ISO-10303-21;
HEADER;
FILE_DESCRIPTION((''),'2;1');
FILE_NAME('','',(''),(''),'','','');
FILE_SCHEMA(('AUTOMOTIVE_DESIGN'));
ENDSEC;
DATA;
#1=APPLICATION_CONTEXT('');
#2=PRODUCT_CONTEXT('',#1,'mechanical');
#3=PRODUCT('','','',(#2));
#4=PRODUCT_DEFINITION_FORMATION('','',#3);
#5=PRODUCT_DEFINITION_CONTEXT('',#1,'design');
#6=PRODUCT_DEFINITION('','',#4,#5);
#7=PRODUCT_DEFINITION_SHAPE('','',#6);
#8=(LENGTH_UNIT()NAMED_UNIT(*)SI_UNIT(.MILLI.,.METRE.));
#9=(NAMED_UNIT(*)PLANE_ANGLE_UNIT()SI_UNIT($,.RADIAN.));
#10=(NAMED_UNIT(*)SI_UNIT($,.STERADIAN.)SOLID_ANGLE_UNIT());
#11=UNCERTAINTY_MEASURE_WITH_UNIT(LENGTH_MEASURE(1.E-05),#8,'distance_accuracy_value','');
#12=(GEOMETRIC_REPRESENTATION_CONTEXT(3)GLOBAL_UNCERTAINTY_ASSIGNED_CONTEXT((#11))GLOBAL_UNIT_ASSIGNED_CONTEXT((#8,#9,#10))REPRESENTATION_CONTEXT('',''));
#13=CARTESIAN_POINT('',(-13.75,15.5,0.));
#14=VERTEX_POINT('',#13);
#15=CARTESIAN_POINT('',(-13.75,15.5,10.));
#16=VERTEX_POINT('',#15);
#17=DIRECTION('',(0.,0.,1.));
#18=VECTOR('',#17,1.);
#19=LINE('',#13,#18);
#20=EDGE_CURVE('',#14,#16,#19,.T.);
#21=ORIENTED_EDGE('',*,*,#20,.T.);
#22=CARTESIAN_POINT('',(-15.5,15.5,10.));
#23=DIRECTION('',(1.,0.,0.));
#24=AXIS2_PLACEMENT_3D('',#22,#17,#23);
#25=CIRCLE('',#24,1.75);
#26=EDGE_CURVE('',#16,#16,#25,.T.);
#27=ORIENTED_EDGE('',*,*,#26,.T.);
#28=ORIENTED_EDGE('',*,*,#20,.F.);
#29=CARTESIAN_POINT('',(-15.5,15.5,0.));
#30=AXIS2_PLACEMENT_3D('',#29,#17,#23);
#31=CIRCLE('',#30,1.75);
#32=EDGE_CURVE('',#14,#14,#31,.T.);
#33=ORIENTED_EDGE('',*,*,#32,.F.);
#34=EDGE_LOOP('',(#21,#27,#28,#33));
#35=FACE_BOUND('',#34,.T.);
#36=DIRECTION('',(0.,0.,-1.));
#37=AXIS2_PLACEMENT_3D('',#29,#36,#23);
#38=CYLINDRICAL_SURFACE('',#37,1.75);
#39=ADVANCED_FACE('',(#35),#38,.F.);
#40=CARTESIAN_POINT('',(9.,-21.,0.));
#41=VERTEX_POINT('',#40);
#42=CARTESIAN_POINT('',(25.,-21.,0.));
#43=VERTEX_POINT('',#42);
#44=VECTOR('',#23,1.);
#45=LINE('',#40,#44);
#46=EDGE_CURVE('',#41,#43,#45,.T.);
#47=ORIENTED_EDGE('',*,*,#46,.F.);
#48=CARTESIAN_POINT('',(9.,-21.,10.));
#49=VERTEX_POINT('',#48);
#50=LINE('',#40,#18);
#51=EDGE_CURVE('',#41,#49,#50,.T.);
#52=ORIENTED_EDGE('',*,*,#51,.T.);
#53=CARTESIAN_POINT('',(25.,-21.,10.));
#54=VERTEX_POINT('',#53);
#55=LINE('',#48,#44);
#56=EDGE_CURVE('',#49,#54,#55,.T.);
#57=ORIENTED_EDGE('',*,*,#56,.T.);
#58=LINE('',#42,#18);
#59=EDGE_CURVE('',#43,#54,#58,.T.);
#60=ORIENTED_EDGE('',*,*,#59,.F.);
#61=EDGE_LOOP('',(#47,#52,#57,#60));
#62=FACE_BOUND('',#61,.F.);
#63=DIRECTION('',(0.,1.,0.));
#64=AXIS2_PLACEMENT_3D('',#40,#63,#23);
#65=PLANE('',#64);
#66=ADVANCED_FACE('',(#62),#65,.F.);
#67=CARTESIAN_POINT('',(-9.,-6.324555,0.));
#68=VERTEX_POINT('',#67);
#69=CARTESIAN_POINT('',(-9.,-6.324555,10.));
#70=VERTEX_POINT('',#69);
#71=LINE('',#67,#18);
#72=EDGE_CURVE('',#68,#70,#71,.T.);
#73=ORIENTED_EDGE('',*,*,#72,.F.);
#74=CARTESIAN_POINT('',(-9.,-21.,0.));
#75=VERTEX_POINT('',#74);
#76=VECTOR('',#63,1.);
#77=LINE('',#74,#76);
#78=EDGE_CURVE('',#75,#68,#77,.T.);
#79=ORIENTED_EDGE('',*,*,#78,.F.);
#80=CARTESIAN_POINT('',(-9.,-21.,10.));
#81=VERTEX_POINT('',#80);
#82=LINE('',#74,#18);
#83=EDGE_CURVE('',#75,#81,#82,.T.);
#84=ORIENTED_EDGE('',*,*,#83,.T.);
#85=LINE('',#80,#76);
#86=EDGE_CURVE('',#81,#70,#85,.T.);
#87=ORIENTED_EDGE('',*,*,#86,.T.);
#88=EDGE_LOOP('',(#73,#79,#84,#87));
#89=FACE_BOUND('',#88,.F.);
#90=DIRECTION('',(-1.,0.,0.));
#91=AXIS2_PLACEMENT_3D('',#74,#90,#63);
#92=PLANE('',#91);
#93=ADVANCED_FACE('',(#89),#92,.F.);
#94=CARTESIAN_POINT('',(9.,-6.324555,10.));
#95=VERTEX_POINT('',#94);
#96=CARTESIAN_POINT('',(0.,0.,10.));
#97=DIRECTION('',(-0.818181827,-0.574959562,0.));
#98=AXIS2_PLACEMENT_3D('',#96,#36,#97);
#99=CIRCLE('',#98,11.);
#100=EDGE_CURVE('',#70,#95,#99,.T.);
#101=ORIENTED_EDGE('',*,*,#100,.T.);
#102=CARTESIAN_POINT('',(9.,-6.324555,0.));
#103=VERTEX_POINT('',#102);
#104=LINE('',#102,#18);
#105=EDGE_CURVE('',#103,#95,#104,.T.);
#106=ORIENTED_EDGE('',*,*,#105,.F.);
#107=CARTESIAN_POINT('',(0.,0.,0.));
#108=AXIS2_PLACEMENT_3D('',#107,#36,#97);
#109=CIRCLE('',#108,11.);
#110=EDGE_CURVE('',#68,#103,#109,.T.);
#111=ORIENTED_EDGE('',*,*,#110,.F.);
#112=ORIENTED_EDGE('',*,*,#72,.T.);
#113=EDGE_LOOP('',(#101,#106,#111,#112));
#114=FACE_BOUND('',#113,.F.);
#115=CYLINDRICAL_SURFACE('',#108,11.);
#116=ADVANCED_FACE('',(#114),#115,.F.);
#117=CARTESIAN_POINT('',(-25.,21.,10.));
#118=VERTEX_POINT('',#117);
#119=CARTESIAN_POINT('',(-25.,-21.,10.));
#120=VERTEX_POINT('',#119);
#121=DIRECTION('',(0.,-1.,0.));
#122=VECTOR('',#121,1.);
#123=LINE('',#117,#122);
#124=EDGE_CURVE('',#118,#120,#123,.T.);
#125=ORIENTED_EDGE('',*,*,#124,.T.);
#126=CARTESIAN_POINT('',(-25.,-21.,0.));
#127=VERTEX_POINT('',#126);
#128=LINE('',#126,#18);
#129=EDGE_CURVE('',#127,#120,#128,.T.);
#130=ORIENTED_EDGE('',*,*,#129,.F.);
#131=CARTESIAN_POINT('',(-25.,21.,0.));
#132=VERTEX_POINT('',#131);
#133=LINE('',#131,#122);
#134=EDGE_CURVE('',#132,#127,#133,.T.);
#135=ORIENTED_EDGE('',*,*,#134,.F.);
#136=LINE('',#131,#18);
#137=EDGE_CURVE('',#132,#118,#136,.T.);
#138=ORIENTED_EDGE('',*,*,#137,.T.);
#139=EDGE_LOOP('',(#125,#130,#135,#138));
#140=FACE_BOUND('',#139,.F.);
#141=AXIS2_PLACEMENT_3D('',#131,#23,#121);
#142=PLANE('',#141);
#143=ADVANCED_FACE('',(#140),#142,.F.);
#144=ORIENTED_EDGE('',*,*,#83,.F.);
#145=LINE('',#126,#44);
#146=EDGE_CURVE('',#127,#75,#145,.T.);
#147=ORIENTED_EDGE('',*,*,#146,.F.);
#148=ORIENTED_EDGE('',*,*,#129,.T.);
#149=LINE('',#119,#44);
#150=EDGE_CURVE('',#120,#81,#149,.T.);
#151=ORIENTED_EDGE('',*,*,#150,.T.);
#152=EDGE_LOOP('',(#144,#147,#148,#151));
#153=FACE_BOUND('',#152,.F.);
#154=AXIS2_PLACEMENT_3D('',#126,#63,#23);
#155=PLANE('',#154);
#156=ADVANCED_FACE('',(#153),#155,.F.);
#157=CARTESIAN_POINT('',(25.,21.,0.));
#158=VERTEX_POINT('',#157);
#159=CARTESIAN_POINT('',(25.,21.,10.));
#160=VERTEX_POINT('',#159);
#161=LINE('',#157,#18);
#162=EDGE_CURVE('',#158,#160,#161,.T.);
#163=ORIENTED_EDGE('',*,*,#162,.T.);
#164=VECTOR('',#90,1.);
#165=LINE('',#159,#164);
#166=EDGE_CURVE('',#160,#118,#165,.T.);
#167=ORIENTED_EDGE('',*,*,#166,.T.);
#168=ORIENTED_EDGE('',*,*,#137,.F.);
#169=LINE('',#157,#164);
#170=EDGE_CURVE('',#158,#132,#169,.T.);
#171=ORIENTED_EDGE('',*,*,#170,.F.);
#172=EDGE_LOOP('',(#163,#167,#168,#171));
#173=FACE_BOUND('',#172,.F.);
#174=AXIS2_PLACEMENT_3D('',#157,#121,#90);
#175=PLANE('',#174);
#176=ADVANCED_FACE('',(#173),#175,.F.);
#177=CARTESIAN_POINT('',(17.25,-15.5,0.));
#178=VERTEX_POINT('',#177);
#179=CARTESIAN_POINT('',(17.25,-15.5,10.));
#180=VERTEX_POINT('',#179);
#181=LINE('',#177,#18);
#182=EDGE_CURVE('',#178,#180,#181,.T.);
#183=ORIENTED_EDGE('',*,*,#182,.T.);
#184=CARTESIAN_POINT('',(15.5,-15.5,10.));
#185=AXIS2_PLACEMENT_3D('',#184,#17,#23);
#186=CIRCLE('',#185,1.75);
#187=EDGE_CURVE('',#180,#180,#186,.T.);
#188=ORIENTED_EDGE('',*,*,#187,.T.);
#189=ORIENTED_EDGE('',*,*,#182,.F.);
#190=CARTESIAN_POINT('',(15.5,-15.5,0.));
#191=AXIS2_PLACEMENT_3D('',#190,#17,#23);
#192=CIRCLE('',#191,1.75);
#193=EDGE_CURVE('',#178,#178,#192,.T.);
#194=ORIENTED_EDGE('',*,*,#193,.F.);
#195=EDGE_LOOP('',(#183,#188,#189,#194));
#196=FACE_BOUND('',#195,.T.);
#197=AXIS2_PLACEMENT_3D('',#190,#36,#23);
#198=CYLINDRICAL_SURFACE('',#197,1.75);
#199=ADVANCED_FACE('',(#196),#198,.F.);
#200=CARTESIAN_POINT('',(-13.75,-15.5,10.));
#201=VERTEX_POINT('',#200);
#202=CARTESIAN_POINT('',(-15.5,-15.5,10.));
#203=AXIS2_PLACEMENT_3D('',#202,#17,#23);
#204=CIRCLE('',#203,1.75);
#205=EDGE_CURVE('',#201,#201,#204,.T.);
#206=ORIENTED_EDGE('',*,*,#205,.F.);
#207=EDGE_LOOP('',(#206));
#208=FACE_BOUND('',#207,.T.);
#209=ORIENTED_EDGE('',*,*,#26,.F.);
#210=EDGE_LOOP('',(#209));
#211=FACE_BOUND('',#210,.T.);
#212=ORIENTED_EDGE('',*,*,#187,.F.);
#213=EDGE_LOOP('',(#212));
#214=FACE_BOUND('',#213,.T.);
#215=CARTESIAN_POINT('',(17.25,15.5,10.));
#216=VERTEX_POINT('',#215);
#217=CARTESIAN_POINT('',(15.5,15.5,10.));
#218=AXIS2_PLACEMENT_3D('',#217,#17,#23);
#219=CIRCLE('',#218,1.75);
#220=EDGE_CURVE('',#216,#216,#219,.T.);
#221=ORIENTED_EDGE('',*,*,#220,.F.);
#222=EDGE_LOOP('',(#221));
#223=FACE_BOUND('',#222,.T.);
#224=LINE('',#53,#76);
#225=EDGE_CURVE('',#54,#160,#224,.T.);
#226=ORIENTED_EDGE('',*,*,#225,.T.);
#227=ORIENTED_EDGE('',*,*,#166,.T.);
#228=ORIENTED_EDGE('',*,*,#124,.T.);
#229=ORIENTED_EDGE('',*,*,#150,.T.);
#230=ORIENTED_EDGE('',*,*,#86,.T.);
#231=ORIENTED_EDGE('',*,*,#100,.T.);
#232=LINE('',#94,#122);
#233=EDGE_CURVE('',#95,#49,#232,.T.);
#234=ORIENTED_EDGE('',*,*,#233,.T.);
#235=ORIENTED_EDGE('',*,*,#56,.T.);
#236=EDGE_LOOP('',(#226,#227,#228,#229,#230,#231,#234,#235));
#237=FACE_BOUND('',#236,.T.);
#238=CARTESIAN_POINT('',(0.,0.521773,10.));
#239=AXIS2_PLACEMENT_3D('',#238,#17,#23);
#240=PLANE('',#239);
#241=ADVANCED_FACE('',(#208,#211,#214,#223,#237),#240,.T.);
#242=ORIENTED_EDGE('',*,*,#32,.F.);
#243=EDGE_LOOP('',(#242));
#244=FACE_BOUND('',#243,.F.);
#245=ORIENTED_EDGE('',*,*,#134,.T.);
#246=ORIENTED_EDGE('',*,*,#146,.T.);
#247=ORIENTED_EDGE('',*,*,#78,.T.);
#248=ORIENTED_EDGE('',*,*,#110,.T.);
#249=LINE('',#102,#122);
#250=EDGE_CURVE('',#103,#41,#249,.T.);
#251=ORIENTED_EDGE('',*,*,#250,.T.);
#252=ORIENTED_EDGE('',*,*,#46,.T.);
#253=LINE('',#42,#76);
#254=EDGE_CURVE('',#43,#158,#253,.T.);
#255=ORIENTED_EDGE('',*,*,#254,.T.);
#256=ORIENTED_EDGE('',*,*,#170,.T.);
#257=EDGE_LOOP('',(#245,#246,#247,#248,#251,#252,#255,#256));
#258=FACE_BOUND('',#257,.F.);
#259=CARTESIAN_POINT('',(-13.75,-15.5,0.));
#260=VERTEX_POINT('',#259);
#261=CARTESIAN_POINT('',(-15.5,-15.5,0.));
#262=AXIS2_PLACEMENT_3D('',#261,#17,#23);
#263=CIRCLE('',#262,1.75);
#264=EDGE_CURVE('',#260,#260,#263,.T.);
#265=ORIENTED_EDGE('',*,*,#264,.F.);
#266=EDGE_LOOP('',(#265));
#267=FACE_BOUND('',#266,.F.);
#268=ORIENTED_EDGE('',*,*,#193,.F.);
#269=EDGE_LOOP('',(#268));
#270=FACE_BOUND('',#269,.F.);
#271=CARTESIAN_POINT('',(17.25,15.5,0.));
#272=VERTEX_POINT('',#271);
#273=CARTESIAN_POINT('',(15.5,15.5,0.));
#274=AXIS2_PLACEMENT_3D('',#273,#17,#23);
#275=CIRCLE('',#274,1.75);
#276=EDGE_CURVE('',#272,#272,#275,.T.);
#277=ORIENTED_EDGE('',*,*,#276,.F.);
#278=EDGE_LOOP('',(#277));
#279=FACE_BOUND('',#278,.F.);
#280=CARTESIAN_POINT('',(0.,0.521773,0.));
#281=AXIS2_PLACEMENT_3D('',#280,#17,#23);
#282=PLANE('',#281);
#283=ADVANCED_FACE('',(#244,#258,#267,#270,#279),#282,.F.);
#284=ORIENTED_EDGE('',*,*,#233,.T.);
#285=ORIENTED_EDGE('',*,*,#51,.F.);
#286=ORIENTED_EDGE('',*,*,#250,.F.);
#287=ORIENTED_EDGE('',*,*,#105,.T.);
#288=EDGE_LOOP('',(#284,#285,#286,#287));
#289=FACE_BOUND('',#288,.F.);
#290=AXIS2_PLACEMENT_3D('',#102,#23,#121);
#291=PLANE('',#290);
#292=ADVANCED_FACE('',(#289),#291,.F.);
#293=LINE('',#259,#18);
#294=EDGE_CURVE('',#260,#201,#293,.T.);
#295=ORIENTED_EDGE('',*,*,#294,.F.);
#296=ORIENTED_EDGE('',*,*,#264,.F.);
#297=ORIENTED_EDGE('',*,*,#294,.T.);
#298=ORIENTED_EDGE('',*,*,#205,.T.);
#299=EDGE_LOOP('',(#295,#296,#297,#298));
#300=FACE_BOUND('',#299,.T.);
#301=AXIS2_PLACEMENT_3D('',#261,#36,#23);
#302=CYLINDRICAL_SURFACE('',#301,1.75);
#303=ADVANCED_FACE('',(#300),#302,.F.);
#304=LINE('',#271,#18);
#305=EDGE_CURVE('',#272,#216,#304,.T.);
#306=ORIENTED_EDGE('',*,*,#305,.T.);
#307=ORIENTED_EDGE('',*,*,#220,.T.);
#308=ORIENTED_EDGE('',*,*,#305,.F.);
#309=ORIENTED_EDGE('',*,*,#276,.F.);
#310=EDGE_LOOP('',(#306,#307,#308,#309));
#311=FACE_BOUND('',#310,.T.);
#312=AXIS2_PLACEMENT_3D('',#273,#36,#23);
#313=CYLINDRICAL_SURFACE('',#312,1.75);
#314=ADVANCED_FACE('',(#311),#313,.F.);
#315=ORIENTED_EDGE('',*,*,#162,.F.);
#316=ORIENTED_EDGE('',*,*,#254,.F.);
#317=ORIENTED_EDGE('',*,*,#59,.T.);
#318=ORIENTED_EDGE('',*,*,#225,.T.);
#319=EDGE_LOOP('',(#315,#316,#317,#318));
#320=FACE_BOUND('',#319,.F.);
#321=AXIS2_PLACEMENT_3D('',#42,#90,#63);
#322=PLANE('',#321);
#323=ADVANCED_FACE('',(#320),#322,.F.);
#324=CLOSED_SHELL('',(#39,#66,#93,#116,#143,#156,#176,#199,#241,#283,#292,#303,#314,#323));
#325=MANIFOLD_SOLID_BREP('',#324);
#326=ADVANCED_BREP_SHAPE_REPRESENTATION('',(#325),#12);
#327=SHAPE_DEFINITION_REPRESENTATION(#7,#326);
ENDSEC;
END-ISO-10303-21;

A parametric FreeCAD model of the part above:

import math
import FreeCAD as App
import Part
import Sketcher
Q = App.Units.Quantity

doc = App.newDocument("Part")
body = doc.addObject("PartDesign::Body", "Body")

# Sketch on XY plane
sketch1 = doc.addObject("Sketcher::SketchObject", "Sketch")
body.addObject(sketch1)
sketch1.AttachmentSupport = (doc.XY_Plane, [""])
sketch1.MapMode = "FlatFace"
sketch1.addGeometry(Part.LineSegment(App.Vector(25, 21, 0), App.Vector(-25, 21, 0)), False)
sketch1.addGeometry(Part.LineSegment(App.Vector(-25, 21, 0), App.Vector(-25, -21, 0)), False)
sketch1.addGeometry(Part.LineSegment(App.Vector(-25, -21, 0), App.Vector(-9, -21, 0)), False)
sketch1.addGeometry(Part.LineSegment(App.Vector(-9, -21, 0), App.Vector(-9, -6.3, 0)), False)
sketch1.addGeometry(Part.ArcOfCircle(Part.Circle(App.Vector(0, 0, 0), App.Vector(0, 0, 1), 11), math.radians(-35), math.radians(215)), False)
sketch1.addGeometry(Part.LineSegment(App.Vector(9, -6.3, 0), App.Vector(9, -21, 0)), False)
sketch1.addGeometry(Part.LineSegment(App.Vector(9, -21, 0), App.Vector(25, -21, 0)), False)
sketch1.addGeometry(Part.LineSegment(App.Vector(25, -21, 0), App.Vector(25, 21, 0)), False)
sketch1.addGeometry(Part.Circle(App.Vector(-15.5, -15.5, 0), App.Vector(0, 0, 1), 1.8), False)
sketch1.addGeometry(Part.Circle(App.Vector(15.5, -15.5, 0), App.Vector(0, 0, 1), 1.8), False)
sketch1.addGeometry(Part.Circle(App.Vector(-15.5, 15.5, 0), App.Vector(0, 0, 1), 1.8), False)
sketch1.addGeometry(Part.Circle(App.Vector(15.5, 15.5, 0), App.Vector(0, 0, 1), 1.8), False)
sketch1.addConstraint(Sketcher.Constraint("Coincident", 0, 2, 1, 1))
sketch1.addConstraint(Sketcher.Constraint("Coincident", 1, 2, 2, 1))
sketch1.addConstraint(Sketcher.Constraint("Coincident", 2, 2, 3, 1))
sketch1.addConstraint(Sketcher.Constraint("Coincident", 3, 2, 4, 2))
sketch1.addConstraint(Sketcher.Constraint("Coincident", 4, 1, 5, 1))
sketch1.addConstraint(Sketcher.Constraint("Coincident", 5, 2, 6, 1))
sketch1.addConstraint(Sketcher.Constraint("Coincident", 6, 2, 7, 1))
sketch1.addConstraint(Sketcher.Constraint("Coincident", 7, 2, 0, 1))
sketch1.addConstraint(Sketcher.Constraint("Horizontal", 0))
sketch1.addConstraint(Sketcher.Constraint("Vertical", 1))
sketch1.addConstraint(Sketcher.Constraint("Horizontal", 2))
sketch1.addConstraint(Sketcher.Constraint("Vertical", 3))
sketch1.addConstraint(Sketcher.Constraint("Vertical", 5))
sketch1.addConstraint(Sketcher.Constraint("Horizontal", 6))
sketch1.addConstraint(Sketcher.Constraint("Vertical", 7))
sketch1.addConstraint(Sketcher.Constraint("Coincident", 4, 3, -1, 1))
sketch1.addConstraint(Sketcher.Constraint("Equal", 8, 9))
sketch1.addConstraint(Sketcher.Constraint("Equal", 9, 10))
sketch1.addConstraint(Sketcher.Constraint("Equal", 10, 11))
sketch1.addConstraint(Sketcher.Constraint("Symmetric", 9, 3, 10, 3, -1, 1))
sketch1.addConstraint(Sketcher.Constraint("Symmetric", 8, 3, 11, 3, -1, 1))
sketch1.addConstraint(Sketcher.Constraint("Symmetric", 0, 2, 6, 2, -1, 1))
sketch1.addConstraint(Sketcher.Constraint("Symmetric", 8, 3, 9, 3, -2))
sketch1.addConstraint(Sketcher.Constraint("Symmetric", 2, 2, 5, 2, -2))
sketch1.addConstraint(Sketcher.Constraint("Radius", 4, Q("11 mm")))
sketch1.addConstraint(Sketcher.Constraint("Diameter", 8, Q("3.5 mm")))
sketch1.addConstraint(Sketcher.Constraint("DistanceX", 0, 2, 0, 1, Q("50 mm")))
sketch1.addConstraint(Sketcher.Constraint("DistanceX", 2, 1, 2, 2, Q("16 mm")))
sketch1.addConstraint(Sketcher.Constraint("DistanceY", 1, 2, 1, 1, Q("42 mm")))
sketch1.addConstraint(Sketcher.Constraint("DistanceX", 8, 3, 9, 3, Q("31 mm")))
sketch1.addConstraint(Sketcher.Constraint("DistanceY", 8, 3, 10, 3, Q("31 mm")))
pad1 = doc.addObject("PartDesign::Pad", "Pad")
body.addObject(pad1)
pad1.Profile = sketch1
pad1.Length = 10

doc.recompute()
